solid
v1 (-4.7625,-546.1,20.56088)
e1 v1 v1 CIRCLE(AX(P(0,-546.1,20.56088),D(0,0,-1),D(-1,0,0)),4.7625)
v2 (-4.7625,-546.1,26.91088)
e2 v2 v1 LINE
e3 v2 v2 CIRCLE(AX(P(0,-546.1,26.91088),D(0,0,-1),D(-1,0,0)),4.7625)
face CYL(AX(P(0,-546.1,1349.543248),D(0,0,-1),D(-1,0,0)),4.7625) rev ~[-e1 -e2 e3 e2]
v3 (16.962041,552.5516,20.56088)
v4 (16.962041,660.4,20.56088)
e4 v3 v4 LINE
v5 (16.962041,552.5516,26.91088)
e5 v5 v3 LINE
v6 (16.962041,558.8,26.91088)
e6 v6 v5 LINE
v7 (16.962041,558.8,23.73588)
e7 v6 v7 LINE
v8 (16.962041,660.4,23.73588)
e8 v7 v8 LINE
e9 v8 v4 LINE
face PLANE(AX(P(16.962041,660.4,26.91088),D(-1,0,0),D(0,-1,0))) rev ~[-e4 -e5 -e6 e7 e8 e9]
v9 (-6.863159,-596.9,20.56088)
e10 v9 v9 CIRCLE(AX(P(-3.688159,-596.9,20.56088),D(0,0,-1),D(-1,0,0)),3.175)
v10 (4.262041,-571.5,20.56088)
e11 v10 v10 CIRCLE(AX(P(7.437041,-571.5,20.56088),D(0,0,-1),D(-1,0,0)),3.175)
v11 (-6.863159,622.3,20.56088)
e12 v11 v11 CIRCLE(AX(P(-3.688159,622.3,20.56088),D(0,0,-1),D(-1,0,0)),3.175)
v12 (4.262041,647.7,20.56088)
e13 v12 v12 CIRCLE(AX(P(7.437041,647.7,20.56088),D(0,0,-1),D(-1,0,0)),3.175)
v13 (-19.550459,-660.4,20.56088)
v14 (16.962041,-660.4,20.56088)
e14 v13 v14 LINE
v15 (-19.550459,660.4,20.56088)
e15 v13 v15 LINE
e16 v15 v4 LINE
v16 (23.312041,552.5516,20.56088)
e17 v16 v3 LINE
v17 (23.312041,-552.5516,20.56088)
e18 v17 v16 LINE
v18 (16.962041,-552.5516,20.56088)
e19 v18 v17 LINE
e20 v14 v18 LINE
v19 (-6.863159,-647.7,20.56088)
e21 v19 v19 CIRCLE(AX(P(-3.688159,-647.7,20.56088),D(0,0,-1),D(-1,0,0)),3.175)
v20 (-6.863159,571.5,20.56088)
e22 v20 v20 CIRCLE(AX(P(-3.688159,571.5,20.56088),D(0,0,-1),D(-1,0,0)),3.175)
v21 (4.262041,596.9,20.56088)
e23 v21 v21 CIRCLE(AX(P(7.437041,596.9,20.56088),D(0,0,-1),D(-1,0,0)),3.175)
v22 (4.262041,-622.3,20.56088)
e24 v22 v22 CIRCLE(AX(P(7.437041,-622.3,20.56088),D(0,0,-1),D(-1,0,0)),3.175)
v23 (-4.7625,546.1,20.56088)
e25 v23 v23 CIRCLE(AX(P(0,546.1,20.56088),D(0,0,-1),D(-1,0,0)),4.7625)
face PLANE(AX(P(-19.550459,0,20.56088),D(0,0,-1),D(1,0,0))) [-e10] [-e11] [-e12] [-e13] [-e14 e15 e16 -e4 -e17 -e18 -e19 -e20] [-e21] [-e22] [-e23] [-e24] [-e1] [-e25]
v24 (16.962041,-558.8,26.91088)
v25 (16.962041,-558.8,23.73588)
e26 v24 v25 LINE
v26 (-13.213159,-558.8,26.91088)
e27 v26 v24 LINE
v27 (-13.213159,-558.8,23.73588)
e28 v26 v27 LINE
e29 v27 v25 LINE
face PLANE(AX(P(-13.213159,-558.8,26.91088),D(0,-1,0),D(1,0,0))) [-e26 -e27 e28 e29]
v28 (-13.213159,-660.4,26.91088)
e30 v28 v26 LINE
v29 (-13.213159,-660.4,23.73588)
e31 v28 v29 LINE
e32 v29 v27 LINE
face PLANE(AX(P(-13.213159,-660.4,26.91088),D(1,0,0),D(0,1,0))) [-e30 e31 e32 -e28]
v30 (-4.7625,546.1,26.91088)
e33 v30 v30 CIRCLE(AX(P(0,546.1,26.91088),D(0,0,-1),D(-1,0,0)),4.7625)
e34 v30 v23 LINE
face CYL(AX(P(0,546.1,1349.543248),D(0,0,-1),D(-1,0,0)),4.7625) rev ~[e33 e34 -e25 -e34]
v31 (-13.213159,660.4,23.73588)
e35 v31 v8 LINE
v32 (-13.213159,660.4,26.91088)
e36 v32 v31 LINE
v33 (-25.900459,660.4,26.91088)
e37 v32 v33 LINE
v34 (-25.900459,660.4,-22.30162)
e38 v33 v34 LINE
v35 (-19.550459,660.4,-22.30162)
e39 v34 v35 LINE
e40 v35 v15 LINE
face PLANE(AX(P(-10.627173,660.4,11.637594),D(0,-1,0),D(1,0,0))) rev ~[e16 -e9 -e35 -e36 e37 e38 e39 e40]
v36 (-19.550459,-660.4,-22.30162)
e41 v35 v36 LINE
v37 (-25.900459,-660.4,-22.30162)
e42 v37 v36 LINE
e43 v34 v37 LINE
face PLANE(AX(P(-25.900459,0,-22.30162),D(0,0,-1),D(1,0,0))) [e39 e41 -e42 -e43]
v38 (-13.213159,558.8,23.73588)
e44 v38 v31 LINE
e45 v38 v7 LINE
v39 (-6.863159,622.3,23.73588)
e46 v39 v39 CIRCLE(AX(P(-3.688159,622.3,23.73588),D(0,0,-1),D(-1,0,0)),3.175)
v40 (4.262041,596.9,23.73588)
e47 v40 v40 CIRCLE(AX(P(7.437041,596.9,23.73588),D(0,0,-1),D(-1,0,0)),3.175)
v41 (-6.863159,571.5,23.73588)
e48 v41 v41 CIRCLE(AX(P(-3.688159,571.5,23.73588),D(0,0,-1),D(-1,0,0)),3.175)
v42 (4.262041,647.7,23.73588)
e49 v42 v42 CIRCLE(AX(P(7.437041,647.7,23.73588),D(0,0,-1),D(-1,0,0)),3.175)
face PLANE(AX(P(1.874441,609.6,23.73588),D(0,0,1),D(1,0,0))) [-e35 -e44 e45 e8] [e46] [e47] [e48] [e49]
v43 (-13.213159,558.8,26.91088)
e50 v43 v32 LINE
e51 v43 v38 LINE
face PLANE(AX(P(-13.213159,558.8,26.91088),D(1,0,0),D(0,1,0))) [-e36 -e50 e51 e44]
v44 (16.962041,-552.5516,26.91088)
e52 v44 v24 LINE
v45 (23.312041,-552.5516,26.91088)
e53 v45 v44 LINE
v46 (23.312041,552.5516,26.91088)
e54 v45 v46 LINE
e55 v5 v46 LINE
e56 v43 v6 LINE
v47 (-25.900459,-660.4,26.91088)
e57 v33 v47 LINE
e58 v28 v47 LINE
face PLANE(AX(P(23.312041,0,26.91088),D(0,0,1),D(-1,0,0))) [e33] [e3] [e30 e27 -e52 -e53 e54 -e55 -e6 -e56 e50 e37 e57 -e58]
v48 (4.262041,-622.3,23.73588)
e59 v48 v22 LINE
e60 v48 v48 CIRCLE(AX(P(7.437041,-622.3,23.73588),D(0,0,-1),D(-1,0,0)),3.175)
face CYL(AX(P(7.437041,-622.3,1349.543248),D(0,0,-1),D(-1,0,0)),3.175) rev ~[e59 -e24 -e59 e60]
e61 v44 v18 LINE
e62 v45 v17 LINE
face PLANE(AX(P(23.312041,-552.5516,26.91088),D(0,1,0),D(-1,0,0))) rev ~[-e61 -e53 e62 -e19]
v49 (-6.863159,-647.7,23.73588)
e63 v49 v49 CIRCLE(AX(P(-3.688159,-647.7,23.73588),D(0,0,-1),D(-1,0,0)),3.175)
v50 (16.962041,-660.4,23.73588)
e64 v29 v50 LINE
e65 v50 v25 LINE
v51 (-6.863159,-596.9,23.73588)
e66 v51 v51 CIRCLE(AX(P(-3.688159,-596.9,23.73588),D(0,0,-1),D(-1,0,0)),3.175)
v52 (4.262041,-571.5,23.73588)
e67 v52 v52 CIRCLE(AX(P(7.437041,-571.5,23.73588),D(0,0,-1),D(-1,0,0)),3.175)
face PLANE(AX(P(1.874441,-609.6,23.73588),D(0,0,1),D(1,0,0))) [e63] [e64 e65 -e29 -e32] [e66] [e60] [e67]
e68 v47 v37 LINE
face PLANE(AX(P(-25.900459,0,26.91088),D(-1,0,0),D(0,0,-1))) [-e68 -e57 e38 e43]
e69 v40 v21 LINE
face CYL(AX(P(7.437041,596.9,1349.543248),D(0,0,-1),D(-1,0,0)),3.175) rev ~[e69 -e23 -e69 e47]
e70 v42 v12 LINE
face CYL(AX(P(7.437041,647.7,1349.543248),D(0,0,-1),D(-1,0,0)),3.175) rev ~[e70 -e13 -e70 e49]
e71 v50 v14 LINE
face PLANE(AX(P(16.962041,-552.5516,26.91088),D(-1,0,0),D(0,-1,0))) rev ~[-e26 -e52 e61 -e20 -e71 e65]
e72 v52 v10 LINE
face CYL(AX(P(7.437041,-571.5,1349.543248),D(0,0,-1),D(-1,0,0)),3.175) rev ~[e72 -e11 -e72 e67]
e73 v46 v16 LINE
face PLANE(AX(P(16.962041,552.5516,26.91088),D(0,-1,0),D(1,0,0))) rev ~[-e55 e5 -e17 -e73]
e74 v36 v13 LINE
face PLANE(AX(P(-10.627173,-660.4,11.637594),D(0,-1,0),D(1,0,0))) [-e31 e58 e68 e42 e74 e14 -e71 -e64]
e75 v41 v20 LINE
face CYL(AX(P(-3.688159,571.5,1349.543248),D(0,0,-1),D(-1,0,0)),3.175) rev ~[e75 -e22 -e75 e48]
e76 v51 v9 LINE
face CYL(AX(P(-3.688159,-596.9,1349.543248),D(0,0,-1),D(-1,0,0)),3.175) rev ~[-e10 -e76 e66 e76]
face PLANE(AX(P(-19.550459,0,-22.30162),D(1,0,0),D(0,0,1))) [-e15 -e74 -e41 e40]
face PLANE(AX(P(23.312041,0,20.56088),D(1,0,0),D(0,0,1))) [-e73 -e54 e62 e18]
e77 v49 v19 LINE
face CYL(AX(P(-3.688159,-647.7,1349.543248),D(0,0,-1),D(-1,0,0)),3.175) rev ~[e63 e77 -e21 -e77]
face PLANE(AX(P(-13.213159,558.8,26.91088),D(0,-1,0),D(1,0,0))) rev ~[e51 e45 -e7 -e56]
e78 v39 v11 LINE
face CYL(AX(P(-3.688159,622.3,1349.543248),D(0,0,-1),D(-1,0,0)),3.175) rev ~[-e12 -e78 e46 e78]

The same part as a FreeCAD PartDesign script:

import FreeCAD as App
import Part
import Sketcher
Q = App.Units.Quantity


def add_polygon(sketch, points):
    """Adds a closed chain of lines whose ends are joined by coincident constraints."""
    first, n = sketch.GeometryCount, len(points)
    for a, b in zip(points, points[1:] + points[:1]):
        sketch.addGeometry(Part.LineSegment(App.Vector(*a, 0), App.Vector(*b, 0)), False)
    for i in range(n):
        sketch.addConstraint(Sketcher.Constraint("Coincident", first + i, 2, first + (i + 1) % n, 1))

doc = App.newDocument("Part")
params = doc.addObject("Spreadsheet::Sheet", "Params")
for row, (alias, value) in enumerate([
    ("sketch1_width", "0.25 in"),
    ("sketch1_width2", "1.9375 in"),
    ("pad1_length", "52 in"),
    ("sketch2_width", "0.25 in"),
    ("sketch2_height", "4.246 in"),
    ("sketch3_diameter", "0.25 in"),
    ("sketch3_height", "4 in"),
    ("sketch3_width", "1.188 in"),
    ("pocket2_length", "0.125 in"),
    ("sketch4_diameter", "0.25 in"),
    ("hole_diameter", "0.25 in"),
    ("sketch5_diameter", "0.375 in"),
    ("hole2_diameter", "0.375 in"),
], start=1):
    params.set(f"A{row}", alias)
    params.set(f"B{row}", "=" + value)
    params.setAlias(f"B{row}", alias)

body = doc.addObject("PartDesign::Body", "Body")

# Sketch on XZ plane
sketch1 = body.newObject("Sketcher::SketchObject", "Sketch")
sketch1.AttachmentSupport = (doc.getObject("XZ_Plane"), [""])
sketch1.MapMode = "FlatFace"
add_polygon(sketch1, [(23, 27), (-26, 27), (-26, -22), (-20, -22), (-20, 21), (23, 21)])  # lines 0-5
sketch1.addConstraint([
    Sketcher.Constraint("Horizontal", 0),
    Sketcher.Constraint("Vertical", 1),
    Sketcher.Constraint("Horizontal", 2),
    Sketcher.Constraint("Vertical", 3),
    Sketcher.Constraint("Horizontal", 4),
    Sketcher.Constraint("Vertical", 5),
    Sketcher.Constraint("Equal", 0, 1),
    Sketcher.Constraint("Equal", 4, 3),
    Sketcher.Constraint("DistanceX", 2, 1, 2, 2, Q("0.25 in")),
    Sketcher.Constraint("DistanceX", 0, 2, 0, 1, Q("1.9375 in")),
    Sketcher.Constraint("DistanceX", 0, 2, -1, 1, 25.900459),
    Sketcher.Constraint("DistanceY", -1, 1, 0, 2, 26.91088),
])
sketch1.setExpression("Constraints[14]", "Params.sketch1_width")
sketch1.setExpression("Constraints[15]", "Params.sketch1_width2")
pad1 = body.newObject("PartDesign::Pad", "Pad")
pad1.Profile = sketch1
pad1.setExpression("Length", "Params.pad1_length")
pad1.Midplane = True

# Sketch on XY plane
sketch2 = body.newObject("Sketcher::SketchObject", "Sketch001")
sketch2.AttachmentSupport = (doc.getObject("XY_Plane"), [""])
sketch2.MapMode = "FlatFace"
sketch2.AttachmentOffset = App.Placement(App.Vector(0, 0, 26.91088), App.Rotation())
add_polygon(sketch2, [(17, 553), (23, 553), (23, 660), (17, 660)])  # lines 0-3
add_polygon(sketch2, [(23, -660), (23, -553), (17, -553), (17, -660)])  # lines 4-7
sketch2.addConstraint([
    Sketcher.Constraint("Horizontal", 0),
    Sketcher.Constraint("Vertical", 1),
    Sketcher.Constraint("Horizontal", 2),
    Sketcher.Constraint("Vertical", 3),
    Sketcher.Constraint("Vertical", 4),
    Sketcher.Constraint("Horizontal", 5),
    Sketcher.Constraint("Vertical", 6),
    Sketcher.Constraint("Horizontal", 7),
    Sketcher.Constraint("Symmetric", 0, 2, 4, 2, -1),
    Sketcher.Constraint("Symmetric", 2, 2, 6, 2, -1),
    Sketcher.Constraint("DistanceY", -1, 1, 1, 2, Q("26 in")),
    Sketcher.Constraint("DistanceX", 0, 1, 0, 2, Q("0.25 in")),
    Sketcher.Constraint("DistanceY", 1, 1, 1, 2, Q("4.246 in")),
    Sketcher.Constraint("DistanceX", -1, 1, 0, 2, 23.312041),
])
sketch2.setExpression("Constraints[19]", "Params.sketch2_width")
sketch2.setExpression("Constraints[20]", "Params.sketch2_height")
pocket1 = body.newObject("PartDesign::Pocket", "Pocket")
pocket1.Profile = sketch2
pocket1.Type = "ThroughAll"

# Sketch on XY plane
sketch3 = body.newObject("Sketcher::SketchObject", "Sketch002")
sketch3.AttachmentSupport = (doc.getObject("XY_Plane"), [""])
sketch3.MapMode = "FlatFace"
sketch3.AttachmentOffset = App.Placement(App.Vector(0, 0, 26.91088), App.Rotation())
add_polygon(sketch3, [(-13.2, -558.8), (-13.2, -660.4), (17, -660.4), (17, -558.8)])  # lines 0-3
sketch3.addGeometry(Part.Circle(App.Vector(-3.7, -647.7, 0), App.Vector(0, 0, 1), 3.2), False)  # 4
sketch3.addGeometry(Part.Circle(App.Vector(7.4, -622.3, 0), App.Vector(0, 0, 1), 3.2), False)  # 5
sketch3.addGeometry(Part.Circle(App.Vector(-3.7, -596.9, 0), App.Vector(0, 0, 1), 3.2), False)  # 6
sketch3.addGeometry(Part.Circle(App.Vector(7.4, -571.5, 0), App.Vector(0, 0, 1), 3.2), False)  # 7
add_polygon(sketch3, [(-13.2, 660.4), (-13.2, 558.8), (17, 558.8), (17, 660.4)])  # lines 8-11
sketch3.addGeometry(Part.Circle(App.Vector(-3.7, 571.5, 0), App.Vector(0, 0, 1), 3.2), False)  # 12
sketch3.addGeometry(Part.Circle(App.Vector(7.4, 596.9, 0), App.Vector(0, 0, 1), 3.2), False)  # 13
sketch3.addGeometry(Part.Circle(App.Vector(-3.7, 622.3, 0), App.Vector(0, 0, 1), 3.2), False)  # 14
sketch3.addGeometry(Part.Circle(App.Vector(7.4, 647.7, 0), App.Vector(0, 0, 1), 3.2), False)  # 15
sketch3.addConstraint([
    Sketcher.Constraint("Vertical", 0),
    Sketcher.Constraint("Horizontal", 1),
    Sketcher.Constraint("Vertical", 2),
    Sketcher.Constraint("Horizontal", 3),
    Sketcher.Constraint("Vertical", 8),
    Sketcher.Constraint("Horizontal", 9),
    Sketcher.Constraint("Vertical", 10),
    Sketcher.Constraint("Horizontal", 11),
    Sketcher.Constraint("Equal", 4, 5),
    Sketcher.Constraint("Equal", 5, 6),
    Sketcher.Constraint("Equal", 6, 7),
    Sketcher.Constraint("Equal", 7, 12),
    Sketcher.Constraint("Equal", 12, 13),
    Sketcher.Constraint("Equal", 13, 14),
    Sketcher.Constraint("Equal", 14, 15),
    Sketcher.Constraint("Symmetric", 3, 2, 8, 2, -1),
    Sketcher.Constraint("Symmetric", 1, 2, 10, 2, -1),
    Sketcher.Constraint("Vertical", 4, 3, 6, 3),
    Sketcher.Constraint("Vertical", 5, 3, 7, 3),
    Sketcher.Constraint("Vertical", 6, 3, 12, 3),
    Sketcher.Constraint("Vertical", 7, 3, 13, 3),
    Sketcher.Constraint("Vertical", 12, 3, 14, 3),
    Sketcher.Constraint("Vertical", 13, 3, 15, 3),
    Sketcher.Constraint("Diameter", 4, Q("0.25 in")),
    Sketcher.Constraint("DistanceY", 0, 2, 0, 1, Q("4 in")),
    Sketcher.Constraint("DistanceY", 0, 2, -1, 1, Q("26 in")),
    Sketcher.Constraint("DistanceY", 4, 3, 5, 3, Q("1 in")),
    Sketcher.Constraint("DistanceY", 5, 3, 6, 3, Q("1 in")),
    Sketcher.Constraint("DistanceY", 6, 3, 7, 3, Q("1 in")),
    Sketcher.Constraint("DistanceY", 7, 3, 12, 3, Q("45 in")),
    Sketcher.Constraint("DistanceY", 12, 3, 13, 3, Q("1 in")),
    Sketcher.Constraint("DistanceY", 13, 3, 14, 3, Q("1 in")),
    Sketcher.Constraint("DistanceY", 14, 3, 15, 3, Q("1 in")),
    Sketcher.Constraint("DistanceY", 4, 3, -1, 1, Q("25.5 in")),
    Sketcher.Constraint("DistanceX", 1, 1, 1, 2, Q("1.188 in")),
    Sketcher.Constraint("DistanceX", 4, 3, 5, 3, Q("0.438 in")),
    Sketcher.Constraint("DistanceX", 0, 2, 4, 3, Q("0.375 in")),
    Sketcher.Constraint("DistanceX", 4, 3, -1, 1, 3.688159),
])
sketch3.setExpression("Constraints[31]", "Params.sketch3_diameter")
sketch3.setExpression("Constraints[32]", "Params.sketch3_height")
sketch3.setExpression("Constraints[42]", "Params.sketch3_width")
pocket2 = body.newObject("PartDesign::Pocket", "Pocket001")
pocket2.Profile = sketch3
pocket2.setExpression("Length", "Params.pocket2_length")

# Sketch on XY plane
sketch4 = body.newObject("Sketcher::SketchObject", "Sketch003")
sketch4.AttachmentSupport = (doc.getObject("XY_Plane"), [""])
sketch4.MapMode = "FlatFace"
sketch4.AttachmentOffset = App.Placement(App.Vector(0, 0, 26.91088), App.Rotation())
sketch4.addGeometry([
    Part.Circle(App.Vector(-3.7, -596.9, 0), App.Vector(0, 0, 1), 3.2),  # 0
    Part.Circle(App.Vector(7.4, -571.5, 0), App.Vector(0, 0, 1), 3.2),  # 1
    Part.Circle(App.Vector(7.4, -622.3, 0), App.Vector(0, 0, 1), 3.2),  # 2
    Part.Circle(App.Vector(-3.7, -647.7, 0), App.Vector(0, 0, 1), 3.2),  # 3
    Part.Circle(App.Vector(7.4, 596.9, 0), App.Vector(0, 0, 1), 3.2),  # 4
    Part.Circle(App.Vector(-3.7, 622.3, 0), App.Vector(0, 0, 1), 3.2),  # 5
    Part.Circle(App.Vector(7.4, 647.7, 0), App.Vector(0, 0, 1), 3.2),  # 6
    Part.Circle(App.Vector(-3.7, 571.5, 0), App.Vector(0, 0, 1), 3.2),  # 7
], False)
sketch4.addConstraint([
    Sketcher.Constraint("Equal", 0, 1),
    Sketcher.Constraint("Equal", 1, 2),
    Sketcher.Constraint("Equal", 2, 3),
    Sketcher.Constraint("Equal", 3, 4),
    Sketcher.Constraint("Equal", 4, 5),
    Sketcher.Constraint("Equal", 5, 6),
    Sketcher.Constraint("Equal", 6, 7),
    Sketcher.Constraint("Vertical", 1, 3, 2, 3),
    Sketcher.Constraint("Vertical", 0, 3, 3, 3),
    Sketcher.Constraint("Vertical", 2, 3, 4, 3),
    Sketcher.Constraint("Vertical", 3, 3, 5, 3),
    Sketcher.Constraint("Vertical", 4, 3, 6, 3),
    Sketcher.Constraint("Vertical", 5, 3, 7, 3),
    Sketcher.Constraint("Diameter", 0, Q("0.25 in")),
    Sketcher.Constraint("DistanceY", 0, 3, 1, 3, Q("1 in")),
    Sketcher.Constraint("DistanceY", 2, 3, 0, 3, Q("1 in")),
    Sketcher.Constraint("DistanceY", 3, 3, 2, 3, Q("1 in")),
    Sketcher.Constraint("DistanceY", 1, 3, 4, 3, Q("46 in")),
    Sketcher.Constraint("DistanceY", 4, 3, 5, 3, Q("1 in")),
    Sketcher.Constraint("DistanceY", 5, 3, 6, 3, Q("1 in")),
    Sketcher.Constraint("DistanceY", 7, 3, 4, 3, Q("1 in")),
    Sketcher.Constraint("DistanceY", 0, 3, -1, 1, Q("23.5 in")),
    Sketcher.Constraint("DistanceX", 0, 3, 1, 3, Q("0.438 in")),
    Sketcher.Constraint("DistanceX", 0, 3, -1, 1, 3.688159),
])
sketch4.setExpression("Constraints[13]", "Params.sketch4_diameter")
doc.recompute()
hole = body.newObject("PartDesign::Hole", "Hole")
hole.Profile = sketch4
hole.ThreadType = "None"
hole.setExpression("Diameter", "Params.hole_diameter")
hole.DepthType = "ThroughAll"

# Sketch on XY plane
sketch5 = body.newObject("Sketcher::SketchObject", "Sketch004")
sketch5.AttachmentSupport = (doc.getObject("XY_Plane"), [""])
sketch5.MapMode = "FlatFace"
sketch5.AttachmentOffset = App.Placement(App.Vector(0, 0, 26.91088), App.Rotation())
sketch5.addGeometry([
    Part.Circle(App.Vector(0, -546.1, 0), App.Vector(0, 0, 1), 4.8),
    Part.Circle(App.Vector(0, 546.1, 0), App.Vector(0, 0, 1), 4.8),
], False)
sketch5.addConstraint([
    Sketcher.Constraint("Equal", 0, 1),
    Sketcher.Constraint("Symmetric", 0, 3, 1, 3, -1, 1),
    Sketcher.Constraint("PointOnObject", 0, 3, -2),
    Sketcher.Constraint("Diameter", 0, Q("0.375 in")),
    Sketcher.Constraint("DistanceY", 0, 3, 1, 3, Q("43 in")),
])
sketch5.setExpression("Constraints[3]", "Params.sketch5_diameter")
doc.recompute()
hole2 = body.newObject("PartDesign::Hole", "Hole001")
hole2.Profile = sketch5
hole2.ThreadType = "None"
hole2.setExpression("Diameter", "Params.hole2_diameter")
hole2.DepthType = "ThroughAll"

doc.recompute()
